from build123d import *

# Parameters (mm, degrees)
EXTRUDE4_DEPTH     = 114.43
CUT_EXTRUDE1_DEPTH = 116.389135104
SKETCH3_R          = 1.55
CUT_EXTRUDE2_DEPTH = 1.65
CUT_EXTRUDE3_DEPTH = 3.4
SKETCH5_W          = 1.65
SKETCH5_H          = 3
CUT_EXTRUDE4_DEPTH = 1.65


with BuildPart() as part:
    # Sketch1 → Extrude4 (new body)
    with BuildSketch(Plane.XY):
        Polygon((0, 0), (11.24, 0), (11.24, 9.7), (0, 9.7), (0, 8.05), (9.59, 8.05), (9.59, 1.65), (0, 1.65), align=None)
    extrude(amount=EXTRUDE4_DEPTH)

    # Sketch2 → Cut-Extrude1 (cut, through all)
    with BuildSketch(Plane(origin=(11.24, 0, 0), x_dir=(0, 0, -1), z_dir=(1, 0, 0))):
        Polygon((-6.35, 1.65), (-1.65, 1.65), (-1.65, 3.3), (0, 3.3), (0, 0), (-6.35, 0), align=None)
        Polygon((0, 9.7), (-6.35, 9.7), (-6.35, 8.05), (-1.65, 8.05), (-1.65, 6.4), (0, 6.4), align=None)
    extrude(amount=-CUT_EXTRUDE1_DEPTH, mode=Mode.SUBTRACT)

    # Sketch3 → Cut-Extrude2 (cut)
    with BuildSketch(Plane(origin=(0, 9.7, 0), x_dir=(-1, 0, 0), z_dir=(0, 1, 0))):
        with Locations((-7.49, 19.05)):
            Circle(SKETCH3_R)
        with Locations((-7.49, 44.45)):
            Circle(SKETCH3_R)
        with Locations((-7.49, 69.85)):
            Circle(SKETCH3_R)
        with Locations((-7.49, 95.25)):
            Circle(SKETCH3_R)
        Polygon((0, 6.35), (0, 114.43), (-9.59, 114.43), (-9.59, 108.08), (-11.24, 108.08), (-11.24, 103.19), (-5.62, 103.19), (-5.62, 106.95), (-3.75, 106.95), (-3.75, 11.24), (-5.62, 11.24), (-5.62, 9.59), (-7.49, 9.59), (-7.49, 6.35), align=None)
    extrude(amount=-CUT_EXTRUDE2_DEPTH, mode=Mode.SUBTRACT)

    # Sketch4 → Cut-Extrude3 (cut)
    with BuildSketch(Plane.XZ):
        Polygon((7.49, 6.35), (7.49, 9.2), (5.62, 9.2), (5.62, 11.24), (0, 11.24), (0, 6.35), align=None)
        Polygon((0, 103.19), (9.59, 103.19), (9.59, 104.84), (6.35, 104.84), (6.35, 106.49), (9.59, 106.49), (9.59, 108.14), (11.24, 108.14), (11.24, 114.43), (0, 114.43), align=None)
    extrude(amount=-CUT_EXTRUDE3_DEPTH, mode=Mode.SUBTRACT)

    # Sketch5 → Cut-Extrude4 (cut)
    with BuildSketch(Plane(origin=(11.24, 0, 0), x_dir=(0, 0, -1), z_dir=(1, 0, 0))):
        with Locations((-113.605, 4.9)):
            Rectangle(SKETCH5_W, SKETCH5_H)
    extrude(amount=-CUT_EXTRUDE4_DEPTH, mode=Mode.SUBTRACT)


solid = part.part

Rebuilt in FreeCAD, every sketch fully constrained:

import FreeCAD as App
import Part
import Sketcher

V = App.Vector


def add_polygon(sketch, points):
    """Adds a closed chain of lines whose ends are joined by coincident constraints."""
    first, n = sketch.GeometryCount, len(points)
    for a, b in zip(points, points[1:] + points[:1]):
        sketch.addGeometry(Part.LineSegment(App.Vector(*a, 0), App.Vector(*b, 0)), False)
    for i in range(n):
        sketch.addConstraint(Sketcher.Constraint("Coincident", first + i, 2, first + (i + 1) % n, 1))

doc = App.newDocument("Part")
body = doc.addObject("PartDesign::Body", "Body")

sketch1 = body.newObject("Sketcher::SketchObject", "Sketch")
sketch1.AttachmentSupport = (doc.getObject("XY_Plane"), [""])
sketch1.MapMode = "FlatFace"
add_polygon(sketch1, [(0, 0), (11.24, 0), (11.24, 9.7), (0, 9.7), (0, 8.05), (9.59, 8.05), (9.59, 1.65), (0, 1.65)])
sketch1.addConstraint([
    Sketcher.Constraint("Horizontal", 0),
    Sketcher.Constraint("Vertical", 1),
    Sketcher.Constraint("Horizontal", 2),
    Sketcher.Constraint("Vertical", 3),
    Sketcher.Constraint("Horizontal", 4),
    Sketcher.Constraint("Vertical", 5),
    Sketcher.Constraint("Horizontal", 6),
    Sketcher.Constraint("Vertical", 7),
    Sketcher.Constraint("Coincident", 7, 2, -1, 1),
    Sketcher.Constraint("PointOnObject", 2, 2, -2),
    Sketcher.Constraint("Equal", 3, 7),
    Sketcher.Constraint("DistanceY", 1, 1, 1, 2, 9.7),
    Sketcher.Constraint("DistanceY", 5, 2, 5, 1, 6.4),
    Sketcher.Constraint("DistanceX", 0, 1, 0, 2, 11.24),
    Sketcher.Constraint("DistanceX", 4, 1, 4, 2, 9.59),
])
pad1 = body.newObject("PartDesign::Pad", "Pad")
pad1.Profile = sketch1
pad1.Length = 114.43

sketch2 = body.newObject("Sketcher::SketchObject", "Sketch001")
sketch2.AttachmentSupport = (doc.getObject("YZ_Plane"), [""])
sketch2.MapMode = "FlatFace"
sketch2.AttachmentOffset = App.Placement(V(0, 0, 11.24), App.Rotation())
add_polygon(sketch2, [(1.65, 1.65), (1.65, 6.35), (0, 6.35), (0, 0), (3.3, 0), (3.3, 1.65)])
add_polygon(sketch2, [(9.7, 0), (9.7, 6.35), (8.05, 6.35), (8.05, 1.65), (6.4, 1.65), (6.4, 0)])
sketch2.addConstraint([
    Sketcher.Constraint("Vertical", 0),
    Sketcher.Constraint("Horizontal", 1),
    Sketcher.Constraint("Vertical", 2),
    Sketcher.Constraint("Horizontal", 3),
    Sketcher.Constraint("Vertical", 4),
    Sketcher.Constraint("Horizontal", 5),
    Sketcher.Constraint("Vertical", 6),
    Sketcher.Constraint("Horizontal", 7),
    Sketcher.Constraint("Vertical", 8),
    Sketcher.Constraint("Horizontal", 9),
    Sketcher.Constraint("Vertical", 10),
    Sketcher.Constraint("Horizontal", 11),
    Sketcher.Constraint("Coincident", 2, 2, -1, 1),
    Sketcher.Constraint("PointOnObject", 10, 2, -1),
    Sketcher.Constraint("Horizontal", 1, 2, 6, 2),
    Sketcher.Constraint("Horizontal", 5, 2, 8, 2),
    Sketcher.Constraint("Equal", 1, 5),
    Sketcher.Constraint("Equal", 5, 7),
    Sketcher.Constraint("Equal", 7, 9),
    Sketcher.Constraint("Equal", 9, 4),
    Sketcher.Constraint("DistanceX", 3, 1, 3, 2, 3.3),
    Sketcher.Constraint("DistanceY", 0, 1, 0, 2, 4.7),
    Sketcher.Constraint("DistanceX", -1, 1, 6, 2, 9.7),
])
pocket1 = body.newObject("PartDesign::Pocket", "Pocket")
pocket1.Profile = sketch2
pocket1.Type = "ThroughAll"

sketch3 = body.newObject("Sketcher::SketchObject", "Sketch002")
sketch3.AttachmentSupport = (doc.getObject("XZ_Plane"), [""])
sketch3.MapMode = "FlatFace"
sketch3.AttachmentOffset = App.Placement(V(0, 0, -9.7), App.Rotation())
sketch3.addGeometry(Part.Circle(V(7.49, 19.05, 0), V(0, 0, 1), 1.55), False)
sketch3.addGeometry(Part.Circle(V(7.49, 44.45, 0), V(0, 0, 1), 1.55), False)
sketch3.addGeometry(Part.Circle(V(7.49, 69.85, 0), V(0, 0, 1), 1.55), False)
sketch3.addGeometry(Part.Circle(V(7.49, 95.25, 0), V(0, 0, 1), 1.55), False)
add_polygon(sketch3, [(0, 6.35), (0, 114.43), (9.59, 114.43), (9.59, 108.08), (11.24, 108.08), (11.24, 103.19), (5.62, 103.19), (5.62, 106.95), (3.75, 106.95), (3.75, 11.24), (5.62, 11.24), (5.62, 9.59), (7.49, 9.59), (7.49, 6.35)])
sketch3.addConstraint([
    Sketcher.Constraint("Vertical", 4),
    Sketcher.Constraint("Horizontal", 5),
    Sketcher.Constraint("Vertical", 6),
    Sketcher.Constraint("Horizontal", 7),
    Sketcher.Constraint("Vertical", 8),
    Sketcher.Constraint("Horizontal", 9),
    Sketcher.Constraint("Vertical", 10),
    Sketcher.Constraint("Horizontal", 11),
    Sketcher.Constraint("Vertical", 12),
    Sketcher.Constraint("Horizontal", 13),
    Sketcher.Constraint("Vertical", 14),
    Sketcher.Constraint("Horizontal", 15),
    Sketcher.Constraint("Vertical", 16),
    Sketcher.Constraint("Horizontal", 17),
    Sketcher.Constraint("Equal", 0, 1),
    Sketcher.Constraint("Equal", 1, 2),
    Sketcher.Constraint("Equal", 2, 3),
    Sketcher.Constraint("PointOnObject", 4, 2, -2),
    Sketcher.Constraint("Vertical", 0, 3, 1, 3),
    Sketcher.Constraint("Vertical", 1, 3, 2, 3),
    Sketcher.Constraint("Vertical", 2, 3, 3, 3),
    Sketcher.Constraint("Vertical", 10, 2, 13, 2),
    Sketcher.Constraint("Vertical", 3, 3, 15, 2),
    Sketcher.Constraint("Equal", 13, 15),
    Sketcher.Constraint("Equal", 7, 14),
    Sketcher.Constraint("Diameter", 0, 3.1),
    Sketcher.Constraint("DistanceX", 5, 1, 5, 2, 9.59),
    Sketcher.Constraint("DistanceX", 7, 1, 7, 2, 1.65),
    Sketcher.Constraint("DistanceX", 9, 2, 9, 1, 5.62),
    Sketcher.Constraint("DistanceX", 11, 2, 11, 1, 1.87),
    Sketcher.Constraint("DistanceY", 4, 1, 4, 2, 108.08),
    Sketcher.Constraint("DistanceY", 6, 2, 6, 1, 6.35),
    Sketcher.Constraint("DistanceY", 8, 2, 8, 1, 4.89),
    Sketcher.Constraint("DistanceY", 10, 1, 10, 2, 3.76),
    Sketcher.Constraint("DistanceY", 12, 2, 12, 1, 95.71),
    Sketcher.Constraint("DistanceY", 0, 3, 1, 3, 25.4),
    Sketcher.Constraint("DistanceY", 1, 3, 2, 3, 25.4),
    Sketcher.Constraint("DistanceY", 2, 3, 3, 3, 25.4),
    Sketcher.Constraint("DistanceY", 16, 2, 0, 3, 12.7),
    Sketcher.Constraint("DistanceY", -1, 1, 0, 3, 19.05),
])
pocket2 = body.newObject("PartDesign::Pocket", "Pocket001")
pocket2.Profile = sketch3
pocket2.Length = 1.65
pocket2.Reversed = True

sketch4 = body.newObject("Sketcher::SketchObject", "Sketch003")
sketch4.AttachmentSupport = (doc.getObject("XZ_Plane"), [""])
sketch4.MapMode = "FlatFace"
add_polygon(sketch4, [(7.49, 6.35), (7.49, 9.2), (5.62, 9.2), (5.62, 11.24), (0, 11.24), (0, 6.35)])
add_polygon(sketch4, [(0, 103.19), (9.59, 103.19), (9.59, 104.84), (6.35, 104.84), (6.35, 106.49), (9.59, 106.49), (9.59, 108.14), (11.24, 108.14), (11.24, 114.43), (0, 114.43)])
sketch4.addConstraint([
    Sketcher.Constraint("Vertical", 0),
    Sketcher.Constraint("Horizontal", 1),
    Sketcher.Constraint("Vertical", 2),
    Sketcher.Constraint("Horizontal", 3),
    Sketcher.Constraint("Vertical", 4),
    Sketcher.Constraint("Horizontal", 5),
    Sketcher.Constraint("Horizontal", 6),
    Sketcher.Constraint("Vertical", 7),
    Sketcher.Constraint("Horizontal", 8),
    Sketcher.Constraint("Vertical", 9),
    Sketcher.Constraint("Horizontal", 10),
    Sketcher.Constraint("Vertical", 11),
    Sketcher.Constraint("Horizontal", 12),
    Sketcher.Constraint("Vertical", 13),
    Sketcher.Constraint("Horizontal", 14),
    Sketcher.Constraint("Vertical", 15),
    Sketcher.Constraint("PointOnObject", 3, 2, -2),
    Sketcher.Constraint("PointOnObject", 14, 2, -2),
    Sketcher.Constraint("Vertical", 7, 2, 10, 2),
    Sketcher.Constraint("Equal", 12, 7),
    Sketcher.Constraint("Equal", 7, 9),
    Sketcher.Constraint("Equal", 9, 11),
    Sketcher.Constraint("Equal", 14, 15),
    Sketcher.Constraint("DistanceX", 1, 2, 1, 1, 1.87),
    Sketcher.Constraint("DistanceX", 3, 2, 3, 1, 5.62),
    Sketcher.Constraint("DistanceX", 6, 1, 6, 2, 9.59),
    Sketcher.Constraint("DistanceX", 8, 2, 8, 1, 3.24),
    Sketcher.Constraint("DistanceX", 12, 1, 12, 2, 1.65),
    Sketcher.Constraint("DistanceY", 0, 1, 0, 2, 2.85),
    Sketcher.Constraint("DistanceY", 2, 1, 2, 2, 2.04),
    Sketcher.Constraint("DistanceY", -1, 1, 0, 2, 9.2),
    Sketcher.Constraint("DistanceY", 2, 2, 7, 2, 93.6),
])
pocket3 = body.newObject("PartDesign::Pocket", "Pocket002")
pocket3.Profile = sketch4
pocket3.Length = 3.4

sketch5 = body.newObject("Sketcher::SketchObject", "Sketch004")
sketch5.AttachmentSupport = (doc.getObject("YZ_Plane"), [""])
sketch5.MapMode = "FlatFace"
sketch5.AttachmentOffset = App.Placement(V(0, 0, 11.24), App.Rotation())
add_polygon(sketch5, [(6.4, 114.43), (3.4, 114.43), (3.4, 112.78), (6.4, 112.78)])
sketch5.addConstraint([
    Sketcher.Constraint("Horizontal", 0),
    Sketcher.Constraint("Vertical", 1),
    Sketcher.Constraint("Horizontal", 2),
    Sketcher.Constraint("Vertical", 3),
    Sketcher.Constraint("DistanceX", 0, 2, 0, 1, 3.0),
    Sketcher.Constraint("DistanceY", 1, 2, 1, 1, 1.65),
    Sketcher.Constraint("DistanceX", -1, 1, 0, 2, 3.4),
    Sketcher.Constraint("DistanceY", -1, 1, 0, 2, 114.43),
])
pocket4 = body.newObject("PartDesign::Pocket", "Pocket003")
pocket4.Profile = sketch5
pocket4.Length = 1.65

doc.recompute()
